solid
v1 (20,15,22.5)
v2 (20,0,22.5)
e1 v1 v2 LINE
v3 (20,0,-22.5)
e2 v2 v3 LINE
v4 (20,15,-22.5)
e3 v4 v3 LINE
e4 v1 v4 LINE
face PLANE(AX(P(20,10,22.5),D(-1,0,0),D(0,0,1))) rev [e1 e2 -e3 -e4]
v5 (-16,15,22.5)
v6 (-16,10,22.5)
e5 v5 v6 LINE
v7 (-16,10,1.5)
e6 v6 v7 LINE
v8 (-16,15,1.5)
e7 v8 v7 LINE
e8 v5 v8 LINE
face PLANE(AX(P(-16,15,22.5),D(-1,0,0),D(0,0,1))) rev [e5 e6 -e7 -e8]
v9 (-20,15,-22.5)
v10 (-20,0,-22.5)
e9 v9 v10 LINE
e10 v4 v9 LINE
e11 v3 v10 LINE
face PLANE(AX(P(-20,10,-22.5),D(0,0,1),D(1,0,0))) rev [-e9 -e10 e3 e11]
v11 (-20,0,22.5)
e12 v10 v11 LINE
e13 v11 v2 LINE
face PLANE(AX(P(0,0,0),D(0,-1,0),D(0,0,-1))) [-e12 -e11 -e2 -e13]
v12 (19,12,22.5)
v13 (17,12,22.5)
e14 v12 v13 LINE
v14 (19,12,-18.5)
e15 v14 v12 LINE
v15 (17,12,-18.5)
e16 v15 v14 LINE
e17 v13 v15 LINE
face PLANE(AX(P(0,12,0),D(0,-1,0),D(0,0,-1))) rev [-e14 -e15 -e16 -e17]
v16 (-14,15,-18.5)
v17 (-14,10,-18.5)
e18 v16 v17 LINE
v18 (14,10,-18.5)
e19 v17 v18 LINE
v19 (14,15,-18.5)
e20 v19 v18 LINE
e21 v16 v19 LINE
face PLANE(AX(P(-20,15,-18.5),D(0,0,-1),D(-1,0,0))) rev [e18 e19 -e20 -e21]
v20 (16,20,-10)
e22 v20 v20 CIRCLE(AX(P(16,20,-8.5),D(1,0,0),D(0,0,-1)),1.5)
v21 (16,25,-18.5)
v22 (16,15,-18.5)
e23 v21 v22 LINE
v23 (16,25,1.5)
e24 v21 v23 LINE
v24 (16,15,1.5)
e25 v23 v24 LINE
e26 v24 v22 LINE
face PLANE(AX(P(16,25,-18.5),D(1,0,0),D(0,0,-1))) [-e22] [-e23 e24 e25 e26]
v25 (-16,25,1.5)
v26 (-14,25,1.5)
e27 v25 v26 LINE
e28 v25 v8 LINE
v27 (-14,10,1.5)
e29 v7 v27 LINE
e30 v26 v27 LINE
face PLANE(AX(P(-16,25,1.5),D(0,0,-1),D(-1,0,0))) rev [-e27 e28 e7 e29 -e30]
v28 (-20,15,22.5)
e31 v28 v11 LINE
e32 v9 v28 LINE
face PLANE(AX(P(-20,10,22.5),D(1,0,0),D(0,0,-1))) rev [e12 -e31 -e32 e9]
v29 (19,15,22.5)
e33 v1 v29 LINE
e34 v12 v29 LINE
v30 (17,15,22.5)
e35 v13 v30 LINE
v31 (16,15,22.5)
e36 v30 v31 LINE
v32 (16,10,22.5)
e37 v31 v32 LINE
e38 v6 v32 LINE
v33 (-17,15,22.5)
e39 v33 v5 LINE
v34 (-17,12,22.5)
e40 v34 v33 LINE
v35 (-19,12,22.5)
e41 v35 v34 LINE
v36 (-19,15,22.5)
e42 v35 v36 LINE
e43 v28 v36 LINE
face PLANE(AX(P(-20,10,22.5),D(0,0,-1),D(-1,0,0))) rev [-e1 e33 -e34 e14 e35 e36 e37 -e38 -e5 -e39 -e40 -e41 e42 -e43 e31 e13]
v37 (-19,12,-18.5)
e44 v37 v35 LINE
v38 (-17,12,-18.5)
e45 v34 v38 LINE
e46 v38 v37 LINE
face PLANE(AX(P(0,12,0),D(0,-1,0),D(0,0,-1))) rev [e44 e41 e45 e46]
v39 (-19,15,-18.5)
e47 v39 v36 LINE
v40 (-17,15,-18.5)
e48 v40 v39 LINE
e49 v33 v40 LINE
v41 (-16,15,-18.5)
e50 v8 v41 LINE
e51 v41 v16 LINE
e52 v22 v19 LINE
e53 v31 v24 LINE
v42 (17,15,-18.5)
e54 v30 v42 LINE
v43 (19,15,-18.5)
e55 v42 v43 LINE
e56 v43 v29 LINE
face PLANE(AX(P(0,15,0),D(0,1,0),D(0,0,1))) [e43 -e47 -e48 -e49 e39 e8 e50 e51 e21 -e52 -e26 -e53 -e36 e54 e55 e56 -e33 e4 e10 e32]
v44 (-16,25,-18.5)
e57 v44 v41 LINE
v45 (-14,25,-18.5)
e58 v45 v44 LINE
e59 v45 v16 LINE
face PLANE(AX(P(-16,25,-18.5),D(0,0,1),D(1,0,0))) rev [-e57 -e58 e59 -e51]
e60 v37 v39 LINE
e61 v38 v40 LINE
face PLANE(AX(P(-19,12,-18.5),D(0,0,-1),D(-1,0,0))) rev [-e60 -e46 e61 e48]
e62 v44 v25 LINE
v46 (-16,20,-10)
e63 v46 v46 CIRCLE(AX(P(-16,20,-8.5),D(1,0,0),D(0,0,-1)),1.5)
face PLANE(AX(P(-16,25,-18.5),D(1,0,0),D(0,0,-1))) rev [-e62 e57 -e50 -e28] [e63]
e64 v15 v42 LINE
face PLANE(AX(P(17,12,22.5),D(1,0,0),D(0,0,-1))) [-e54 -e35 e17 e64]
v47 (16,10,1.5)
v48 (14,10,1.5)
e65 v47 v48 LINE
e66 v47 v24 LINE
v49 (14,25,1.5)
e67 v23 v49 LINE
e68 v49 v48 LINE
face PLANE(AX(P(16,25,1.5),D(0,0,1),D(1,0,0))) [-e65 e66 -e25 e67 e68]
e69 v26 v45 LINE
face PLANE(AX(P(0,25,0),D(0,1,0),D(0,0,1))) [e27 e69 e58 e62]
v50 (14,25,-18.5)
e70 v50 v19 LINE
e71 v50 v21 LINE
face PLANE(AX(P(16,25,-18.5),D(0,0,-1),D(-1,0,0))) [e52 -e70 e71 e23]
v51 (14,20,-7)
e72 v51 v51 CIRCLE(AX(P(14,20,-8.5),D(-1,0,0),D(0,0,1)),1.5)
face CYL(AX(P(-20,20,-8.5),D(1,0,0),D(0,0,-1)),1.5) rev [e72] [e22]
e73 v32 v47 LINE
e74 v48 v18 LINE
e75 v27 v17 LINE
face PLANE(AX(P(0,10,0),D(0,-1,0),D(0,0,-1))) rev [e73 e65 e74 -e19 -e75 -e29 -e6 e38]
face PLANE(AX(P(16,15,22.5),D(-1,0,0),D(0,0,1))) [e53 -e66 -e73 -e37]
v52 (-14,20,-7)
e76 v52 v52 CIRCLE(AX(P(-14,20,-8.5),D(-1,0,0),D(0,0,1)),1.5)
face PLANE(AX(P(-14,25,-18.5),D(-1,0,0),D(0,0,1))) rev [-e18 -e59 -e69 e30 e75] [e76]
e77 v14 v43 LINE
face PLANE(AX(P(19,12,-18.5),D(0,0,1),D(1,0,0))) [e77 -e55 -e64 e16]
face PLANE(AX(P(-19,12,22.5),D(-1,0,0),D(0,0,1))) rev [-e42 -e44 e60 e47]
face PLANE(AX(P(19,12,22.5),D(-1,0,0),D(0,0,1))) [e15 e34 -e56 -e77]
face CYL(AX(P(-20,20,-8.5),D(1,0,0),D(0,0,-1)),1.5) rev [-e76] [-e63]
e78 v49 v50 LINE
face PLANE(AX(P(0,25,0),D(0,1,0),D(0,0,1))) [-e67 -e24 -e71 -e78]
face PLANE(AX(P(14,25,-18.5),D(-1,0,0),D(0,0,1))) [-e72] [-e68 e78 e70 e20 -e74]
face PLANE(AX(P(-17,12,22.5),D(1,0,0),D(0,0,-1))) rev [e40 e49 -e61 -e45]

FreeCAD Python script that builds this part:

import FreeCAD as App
import Part
import Sketcher
Q = App.Units.Quantity


def add_polygon(sketch, points):
    """Adds a closed chain of lines whose ends are joined by coincident constraints."""
    first, n = sketch.GeometryCount, len(points)
    for a, b in zip(points, points[1:] + points[:1]):
        sketch.addGeometry(Part.LineSegment(App.Vector(*a, 0), App.Vector(*b, 0)), False)
    for i in range(n):
        sketch.addConstraint(Sketcher.Constraint("Coincident", first + i, 2, first + (i + 1) % n, 1))

doc = App.newDocument("Part")
body = doc.addObject("PartDesign::Body", "Body")

sketch1 = body.newObject("Sketcher::SketchObject", "Sketch")
sketch1.AttachmentSupport = (doc.getObject("XZ_Plane"), [""])
sketch1.MapMode = "FlatFace"
add_polygon(sketch1, [(-20, -22.5), (-20, 22.5), (20, 22.5), (20, -22.5)])
sketch1.addConstraint(Sketcher.Constraint("Vertical", 0))
sketch1.addConstraint(Sketcher.Constraint("Horizontal", 1))
sketch1.addConstraint(Sketcher.Constraint("Vertical", 2))
sketch1.addConstraint(Sketcher.Constraint("Horizontal", 3))
sketch1.addConstraint(Sketcher.Constraint("Symmetric", 0, 2, 2, 2, -1, 1))
sketch1.addConstraint(Sketcher.Constraint("DistanceX", 1, 1, 1, 2, Q("40 mm")))
sketch1.addConstraint(Sketcher.Constraint("DistanceY", 0, 1, 0, 2, Q("45 mm")))
pad1 = body.newObject("PartDesign::Pad", "Pad")
pad1.Profile = sketch1
pad1.Length = 10
pad1.Reversed = True

sketch2 = body.newObject("Sketcher::SketchObject", "Sketch001")
sketch2.AttachmentSupport = (doc.getObject("XZ_Plane"), [""])
sketch2.MapMode = "FlatFace"
sketch2.AttachmentOffset = App.Placement(App.Vector(0, 0, -10), App.Rotation())
add_polygon(sketch2, [(-20, -22.5), (-20, -18.5), (20, -18.5), (20, -22.5)])
sketch2.addConstraint(Sketcher.Constraint("Vertical", 0))
sketch2.addConstraint(Sketcher.Constraint("Horizontal", 1))
sketch2.addConstraint(Sketcher.Constraint("Vertical", 2))
sketch2.addConstraint(Sketcher.Constraint("Horizontal", 3))
sketch2.addConstraint(Sketcher.Constraint("DistanceX", 1, 1, 1, 2, Q("40 mm")))
sketch2.addConstraint(Sketcher.Constraint("DistanceY", 0, 1, 0, 2, Q("4 mm")))
sketch2.addConstraint(Sketcher.Constraint("DistanceX", 0, 2, -1, 1, Q("20 mm")))
sketch2.addConstraint(Sketcher.Constraint("DistanceY", 0, 2, -1, 1, Q("18.5 mm")))
pad2 = body.newObject("PartDesign::Pad", "Pad001")
pad2.Profile = sketch2
pad2.Length = 5
pad2.Reversed = True

sketch3 = body.newObject("Sketcher::SketchObject", "Sketch002")
sketch3.AttachmentSupport = (doc.getObject("XZ_Plane"), [""])
sketch3.MapMode = "FlatFace"
sketch3.AttachmentOffset = App.Placement(App.Vector(0, 0, -10), App.Rotation())
add_polygon(sketch3, [(-20, -18.5), (-20, 22.5), (-16, 22.5), (-16, -18.5)])
sketch3.addConstraint(Sketcher.Constraint("Vertical", 0))
sketch3.addConstraint(Sketcher.Constraint("Horizontal", 1))
sketch3.addConstraint(Sketcher.Constraint("Vertical", 2))
sketch3.addConstraint(Sketcher.Constraint("Horizontal", 3))
sketch3.addConstraint(Sketcher.Constraint("DistanceX", 1, 1, 1, 2, Q("4 mm")))
sketch3.addConstraint(Sketcher.Constraint("DistanceY", 0, 1, 0, 2, Q("41 mm")))
sketch3.addConstraint(Sketcher.Constraint("DistanceX", 0, 2, -1, 1, Q("20 mm")))
sketch3.addConstraint(Sketcher.Constraint("DistanceY", -1, 1, 0, 2, Q("22.5 mm")))
pad3 = body.newObject("PartDesign::Pad", "Pad002")
pad3.Profile = sketch3
pad3.Length = 5
pad3.Reversed = True

sketch4 = body.newObject("Sketcher::SketchObject", "Sketch003")
sketch4.AttachmentSupport = (doc.getObject("XZ_Plane"), [""])
sketch4.MapMode = "FlatFace"
sketch4.AttachmentOffset = App.Placement(App.Vector(0, 0, -15), App.Rotation())
add_polygon(sketch4, [(-19, -18.5), (-19, 22.5), (-17, 22.5), (-17, -18.5)])
sketch4.addConstraint(Sketcher.Constraint("Vertical", 0))
sketch4.addConstraint(Sketcher.Constraint("Horizontal", 1))
sketch4.addConstraint(Sketcher.Constraint("Vertical", 2))
sketch4.addConstraint(Sketcher.Constraint("Horizontal", 3))
sketch4.addConstraint(Sketcher.Constraint("DistanceX", 1, 1, 1, 2, Q("2 mm")))
sketch4.addConstraint(Sketcher.Constraint("DistanceY", 0, 1, 0, 2, Q("41 mm")))
sketch4.addConstraint(Sketcher.Constraint("DistanceX", 0, 2, -1, 1, Q("19 mm")))
sketch4.addConstraint(Sketcher.Constraint("DistanceY", -1, 1, 0, 2, Q("22.5 mm")))
pocket1 = body.newObject("PartDesign::Pocket", "Pocket")
pocket1.Profile = sketch4
pocket1.Length = 3
pocket1.Reversed = True
doc.recompute()

mirrored = body.newObject("PartDesign::Mirrored", "Mirrored")
mirrored.Originals = [pad3, pocket1]
mirrored.MirrorPlane = (doc.getObject("YZ_Plane"), [""])
body.Tip = mirrored

sketch5 = body.newObject("Sketcher::SketchObject", "Sketch004")
sketch5.AttachmentSupport = (doc.getObject("XZ_Plane"), [""])
sketch5.MapMode = "FlatFace"
sketch5.AttachmentOffset = App.Placement(App.Vector(0, 0, -10), App.Rotation())
add_polygon(sketch5, [(-16, -18.5), (-16, 1.5), (-14, 1.5), (-14, -18.5)])
sketch5.addConstraint(Sketcher.Constraint("Vertical", 0))
sketch5.addConstraint(Sketcher.Constraint("Horizontal", 1))
sketch5.addConstraint(Sketcher.Constraint("Vertical", 2))
sketch5.addConstraint(Sketcher.Constraint("Horizontal", 3))
sketch5.addConstraint(Sketcher.Constraint("DistanceX", 1, 1, 1, 2, Q("2 mm")))
sketch5.addConstraint(Sketcher.Constraint("DistanceY", 0, 1, 0, 2, Q("20 mm")))
sketch5.addConstraint(Sketcher.Constraint("DistanceX", 0, 2, -1, 1, Q("16 mm")))
sketch5.addConstraint(Sketcher.Constraint("DistanceY", -1, 1, 0, 2, Q("1.5 mm")))
pad4 = body.newObject("PartDesign::Pad", "Pad003")
pad4.Profile = sketch5
pad4.Length = 15
pad4.Reversed = True
doc.recompute()

mirrored2 = body.newObject("PartDesign::Mirrored", "Mirrored001")
mirrored2.Originals = [pad4]
mirrored2.MirrorPlane = (doc.getObject("YZ_Plane"), [""])
body.Tip = mirrored2

sketch6 = body.newObject("Sketcher::SketchObject", "Sketch005")
sketch6.AttachmentSupport = (doc.getObject("YZ_Plane"), [""])
sketch6.MapMode = "FlatFace"
sketch6.AttachmentOffset = App.Placement(App.Vector(0, 0, 16), App.Rotation())
sketch6.addGeometry(Part.Circle(App.Vector(20, -8.5, 0), App.Vector(0, 0, 1), 1.5), False)
sketch6.addConstraint(Sketcher.Constraint("Diameter", 0, Q("3 mm")))
sketch6.addConstraint(Sketcher.Constraint("DistanceX", -1, 1, 0, 3, Q("20 mm")))
sketch6.addConstraint(Sketcher.Constraint("DistanceY", 0, 3, -1, 1, Q("8.5 mm")))
pocket2 = body.newObject("PartDesign::Pocket", "Pocket001")
pocket2.Profile = sketch6
pocket2.Type = "ThroughAll"
pocket2.Midplane = True

doc.recompute()
